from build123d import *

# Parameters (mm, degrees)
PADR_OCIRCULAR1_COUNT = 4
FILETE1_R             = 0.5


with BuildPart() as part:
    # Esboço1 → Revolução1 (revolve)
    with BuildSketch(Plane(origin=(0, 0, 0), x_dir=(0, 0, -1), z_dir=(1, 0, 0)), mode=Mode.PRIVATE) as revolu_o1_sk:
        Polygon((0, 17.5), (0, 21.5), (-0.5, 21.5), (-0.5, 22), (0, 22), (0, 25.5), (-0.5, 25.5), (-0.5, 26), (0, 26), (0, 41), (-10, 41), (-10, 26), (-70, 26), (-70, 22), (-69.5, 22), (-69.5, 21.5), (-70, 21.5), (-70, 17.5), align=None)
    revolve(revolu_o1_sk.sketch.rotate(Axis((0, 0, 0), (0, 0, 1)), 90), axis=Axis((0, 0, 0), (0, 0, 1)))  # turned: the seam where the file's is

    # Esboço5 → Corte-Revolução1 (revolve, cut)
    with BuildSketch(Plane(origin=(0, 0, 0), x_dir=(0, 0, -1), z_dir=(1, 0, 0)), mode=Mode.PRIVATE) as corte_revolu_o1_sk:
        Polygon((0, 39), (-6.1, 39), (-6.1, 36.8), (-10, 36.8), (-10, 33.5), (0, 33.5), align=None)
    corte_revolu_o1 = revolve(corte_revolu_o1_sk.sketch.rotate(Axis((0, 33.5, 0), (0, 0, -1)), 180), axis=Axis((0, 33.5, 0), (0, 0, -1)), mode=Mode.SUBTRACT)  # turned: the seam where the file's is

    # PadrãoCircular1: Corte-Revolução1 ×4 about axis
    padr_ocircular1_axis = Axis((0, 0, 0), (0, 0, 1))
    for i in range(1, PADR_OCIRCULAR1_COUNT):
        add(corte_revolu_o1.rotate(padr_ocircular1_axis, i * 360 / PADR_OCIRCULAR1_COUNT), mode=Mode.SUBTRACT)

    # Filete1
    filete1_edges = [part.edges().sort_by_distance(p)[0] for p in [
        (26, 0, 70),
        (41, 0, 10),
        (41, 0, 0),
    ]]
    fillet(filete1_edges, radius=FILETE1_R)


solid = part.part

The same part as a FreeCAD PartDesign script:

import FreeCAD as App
import Part
import Sketcher

V = App.Vector


def edges_at(feature, points):
    """Names of the edges that pass closest to the given points."""
    edges = feature.Shape.Edges
    near = lambda p: min(range(len(edges)), key=lambda i: edges[i].distToShape(Part.Vertex(*p))[0])
    return sorted({f"Edge{near(p) + 1}" for p in points})


def add_polygon(sketch, points):
    """Adds a closed chain of lines whose ends are joined by coincident constraints."""
    first, n = sketch.GeometryCount, len(points)
    for a, b in zip(points, points[1:] + points[:1]):
        sketch.addGeometry(Part.LineSegment(App.Vector(*a, 0), App.Vector(*b, 0)), False)
    for i in range(n):
        sketch.addConstraint(Sketcher.Constraint("Coincident", first + i, 2, first + (i + 1) % n, 1))

doc = App.newDocument("Part")
body = doc.addObject("PartDesign::Body", "Body")

sketch1 = body.newObject("Sketcher::SketchObject", "Sketch")
sketch1.AttachmentSupport = (doc.getObject("YZ_Plane"), [""])
sketch1.MapMode = "FlatFace"
add_polygon(sketch1, [(17.5, 0), (21.5, 0), (21.5, 0.5), (22, 0.5), (22, 0), (25.5, 0), (25.5, 0.5), (26, 0.5), (26, 0), (41, 0), (41, 10), (26, 10), (26, 70), (22, 70), (22, 69.5), (21.5, 69.5), (21.5, 70), (17.5, 70)])
sketch1.addConstraint([
    Sketcher.Constraint("Horizontal", 0),
    Sketcher.Constraint("Vertical", 1),
    Sketcher.Constraint("Horizontal", 2),
    Sketcher.Constraint("Vertical", 3),
    Sketcher.Constraint("Horizontal", 4),
    Sketcher.Constraint("Vertical", 5),
    Sketcher.Constraint("Horizontal", 6),
    Sketcher.Constraint("Vertical", 7),
    Sketcher.Constraint("Horizontal", 8),
    Sketcher.Constraint("Vertical", 9),
    Sketcher.Constraint("Horizontal", 10),
    Sketcher.Constraint("Vertical", 11),
    Sketcher.Constraint("Horizontal", 12),
    Sketcher.Constraint("Vertical", 13),
    Sketcher.Constraint("Horizontal", 14),
    Sketcher.Constraint("Vertical", 15),
    Sketcher.Constraint("Horizontal", 16),
    Sketcher.Constraint("Vertical", 17),
    Sketcher.Constraint("PointOnObject", 0, 2, -1),
    Sketcher.Constraint("PointOnObject", 3, 2, -1),
    Sketcher.Constraint("PointOnObject", 7, 2, -1),
    Sketcher.Constraint("Horizontal", 2, 2, 5, 2),
    Sketcher.Constraint("Horizontal", 12, 2, 15, 2),
    Sketcher.Constraint("Vertical", 7, 2, 10, 2),
    Sketcher.Constraint("Vertical", 3, 2, 12, 2),
    Sketcher.Constraint("Vertical", 1, 2, 14, 2),
    Sketcher.Constraint("Equal", 2, 6),
    Sketcher.Constraint("Equal", 0, 12),
    Sketcher.Constraint("Equal", 14, 1),
    Sketcher.Constraint("Equal", 7, 13),
    Sketcher.Constraint("DistanceX", 0, 1, 0, 2, 4.0),
    Sketcher.Constraint("DistanceX", 8, 1, 8, 2, 15.0),
    Sketcher.Constraint("DistanceY", 9, 1, 9, 2, 10.0),
    Sketcher.Constraint("DistanceY", 11, 1, 11, 2, 60.0),
    Sketcher.Constraint("DistanceX", 2, 1, 2, 2, 0.5),
    Sketcher.Constraint("DistanceX", -1, 1, 2, 2, 22.0),
])
revolution = body.newObject("PartDesign::Revolution", "Revolution")
revolution.Profile = sketch1
revolution.ReferenceAxis = (sketch1, ["V_Axis"])
revolution.Angle = 360

sketch2 = body.newObject("Sketcher::SketchObject", "Sketch001")
sketch2.AttachmentSupport = (doc.getObject("YZ_Plane"), [""])
sketch2.MapMode = "FlatFace"
add_polygon(sketch2, [(39, 0), (39, 6.1), (36.8, 6.1), (36.8, 10), (33.5, 10), (33.5, 0)])
sketch2.addGeometry(Part.LineSegment(V(33.5, 10, 0), V(33.5, 0, 0)), True)
sketch2.addConstraint([
    Sketcher.Constraint("Vertical", 0),
    Sketcher.Constraint("Horizontal", 1),
    Sketcher.Constraint("Vertical", 2),
    Sketcher.Constraint("Horizontal", 3),
    Sketcher.Constraint("Vertical", 4),
    Sketcher.Constraint("Horizontal", 5),
    Sketcher.Constraint("Vertical", 6),
    Sketcher.Constraint("Coincident", 6, 1, 3, 2),
    Sketcher.Constraint("PointOnObject", 4, 2, -1),
    Sketcher.Constraint("PointOnObject", 6, 2, -1),
    Sketcher.Constraint("DistanceY", 4, 2, 4, 1, 10.0),
    Sketcher.Constraint("DistanceX", 1, 2, 1, 1, 2.2),
    Sketcher.Constraint("DistanceX", 3, 2, 3, 1, 3.3),
    Sketcher.Constraint("DistanceY", 0, 1, 0, 2, 6.1),
    Sketcher.Constraint("DistanceX", -1, 1, 0, 2, 39.0),
])
groove = body.newObject("PartDesign::Groove", "Groove")
groove.Profile = sketch2
groove.ReferenceAxis = (sketch2, ["Axis0"])
groove.Angle = 360
doc.recompute()

polarpattern = body.newObject("PartDesign::PolarPattern", "PolarPattern")
polarpattern.Originals = [groove]
polarpattern.Axis = (doc.getObject("Z_Axis"), [""])
polarpattern.Angle = 360
polarpattern.Occurrences = 4
body.Tip = polarpattern
doc.recompute()

fillet = body.newObject("PartDesign::Fillet", "Fillet")
fillet.Base = (polarpattern, edges_at(polarpattern, [(26, 0, 70), (41, 0, 10), (41, 0, 0)]))
fillet.Radius = 0.5

doc.recompute()
